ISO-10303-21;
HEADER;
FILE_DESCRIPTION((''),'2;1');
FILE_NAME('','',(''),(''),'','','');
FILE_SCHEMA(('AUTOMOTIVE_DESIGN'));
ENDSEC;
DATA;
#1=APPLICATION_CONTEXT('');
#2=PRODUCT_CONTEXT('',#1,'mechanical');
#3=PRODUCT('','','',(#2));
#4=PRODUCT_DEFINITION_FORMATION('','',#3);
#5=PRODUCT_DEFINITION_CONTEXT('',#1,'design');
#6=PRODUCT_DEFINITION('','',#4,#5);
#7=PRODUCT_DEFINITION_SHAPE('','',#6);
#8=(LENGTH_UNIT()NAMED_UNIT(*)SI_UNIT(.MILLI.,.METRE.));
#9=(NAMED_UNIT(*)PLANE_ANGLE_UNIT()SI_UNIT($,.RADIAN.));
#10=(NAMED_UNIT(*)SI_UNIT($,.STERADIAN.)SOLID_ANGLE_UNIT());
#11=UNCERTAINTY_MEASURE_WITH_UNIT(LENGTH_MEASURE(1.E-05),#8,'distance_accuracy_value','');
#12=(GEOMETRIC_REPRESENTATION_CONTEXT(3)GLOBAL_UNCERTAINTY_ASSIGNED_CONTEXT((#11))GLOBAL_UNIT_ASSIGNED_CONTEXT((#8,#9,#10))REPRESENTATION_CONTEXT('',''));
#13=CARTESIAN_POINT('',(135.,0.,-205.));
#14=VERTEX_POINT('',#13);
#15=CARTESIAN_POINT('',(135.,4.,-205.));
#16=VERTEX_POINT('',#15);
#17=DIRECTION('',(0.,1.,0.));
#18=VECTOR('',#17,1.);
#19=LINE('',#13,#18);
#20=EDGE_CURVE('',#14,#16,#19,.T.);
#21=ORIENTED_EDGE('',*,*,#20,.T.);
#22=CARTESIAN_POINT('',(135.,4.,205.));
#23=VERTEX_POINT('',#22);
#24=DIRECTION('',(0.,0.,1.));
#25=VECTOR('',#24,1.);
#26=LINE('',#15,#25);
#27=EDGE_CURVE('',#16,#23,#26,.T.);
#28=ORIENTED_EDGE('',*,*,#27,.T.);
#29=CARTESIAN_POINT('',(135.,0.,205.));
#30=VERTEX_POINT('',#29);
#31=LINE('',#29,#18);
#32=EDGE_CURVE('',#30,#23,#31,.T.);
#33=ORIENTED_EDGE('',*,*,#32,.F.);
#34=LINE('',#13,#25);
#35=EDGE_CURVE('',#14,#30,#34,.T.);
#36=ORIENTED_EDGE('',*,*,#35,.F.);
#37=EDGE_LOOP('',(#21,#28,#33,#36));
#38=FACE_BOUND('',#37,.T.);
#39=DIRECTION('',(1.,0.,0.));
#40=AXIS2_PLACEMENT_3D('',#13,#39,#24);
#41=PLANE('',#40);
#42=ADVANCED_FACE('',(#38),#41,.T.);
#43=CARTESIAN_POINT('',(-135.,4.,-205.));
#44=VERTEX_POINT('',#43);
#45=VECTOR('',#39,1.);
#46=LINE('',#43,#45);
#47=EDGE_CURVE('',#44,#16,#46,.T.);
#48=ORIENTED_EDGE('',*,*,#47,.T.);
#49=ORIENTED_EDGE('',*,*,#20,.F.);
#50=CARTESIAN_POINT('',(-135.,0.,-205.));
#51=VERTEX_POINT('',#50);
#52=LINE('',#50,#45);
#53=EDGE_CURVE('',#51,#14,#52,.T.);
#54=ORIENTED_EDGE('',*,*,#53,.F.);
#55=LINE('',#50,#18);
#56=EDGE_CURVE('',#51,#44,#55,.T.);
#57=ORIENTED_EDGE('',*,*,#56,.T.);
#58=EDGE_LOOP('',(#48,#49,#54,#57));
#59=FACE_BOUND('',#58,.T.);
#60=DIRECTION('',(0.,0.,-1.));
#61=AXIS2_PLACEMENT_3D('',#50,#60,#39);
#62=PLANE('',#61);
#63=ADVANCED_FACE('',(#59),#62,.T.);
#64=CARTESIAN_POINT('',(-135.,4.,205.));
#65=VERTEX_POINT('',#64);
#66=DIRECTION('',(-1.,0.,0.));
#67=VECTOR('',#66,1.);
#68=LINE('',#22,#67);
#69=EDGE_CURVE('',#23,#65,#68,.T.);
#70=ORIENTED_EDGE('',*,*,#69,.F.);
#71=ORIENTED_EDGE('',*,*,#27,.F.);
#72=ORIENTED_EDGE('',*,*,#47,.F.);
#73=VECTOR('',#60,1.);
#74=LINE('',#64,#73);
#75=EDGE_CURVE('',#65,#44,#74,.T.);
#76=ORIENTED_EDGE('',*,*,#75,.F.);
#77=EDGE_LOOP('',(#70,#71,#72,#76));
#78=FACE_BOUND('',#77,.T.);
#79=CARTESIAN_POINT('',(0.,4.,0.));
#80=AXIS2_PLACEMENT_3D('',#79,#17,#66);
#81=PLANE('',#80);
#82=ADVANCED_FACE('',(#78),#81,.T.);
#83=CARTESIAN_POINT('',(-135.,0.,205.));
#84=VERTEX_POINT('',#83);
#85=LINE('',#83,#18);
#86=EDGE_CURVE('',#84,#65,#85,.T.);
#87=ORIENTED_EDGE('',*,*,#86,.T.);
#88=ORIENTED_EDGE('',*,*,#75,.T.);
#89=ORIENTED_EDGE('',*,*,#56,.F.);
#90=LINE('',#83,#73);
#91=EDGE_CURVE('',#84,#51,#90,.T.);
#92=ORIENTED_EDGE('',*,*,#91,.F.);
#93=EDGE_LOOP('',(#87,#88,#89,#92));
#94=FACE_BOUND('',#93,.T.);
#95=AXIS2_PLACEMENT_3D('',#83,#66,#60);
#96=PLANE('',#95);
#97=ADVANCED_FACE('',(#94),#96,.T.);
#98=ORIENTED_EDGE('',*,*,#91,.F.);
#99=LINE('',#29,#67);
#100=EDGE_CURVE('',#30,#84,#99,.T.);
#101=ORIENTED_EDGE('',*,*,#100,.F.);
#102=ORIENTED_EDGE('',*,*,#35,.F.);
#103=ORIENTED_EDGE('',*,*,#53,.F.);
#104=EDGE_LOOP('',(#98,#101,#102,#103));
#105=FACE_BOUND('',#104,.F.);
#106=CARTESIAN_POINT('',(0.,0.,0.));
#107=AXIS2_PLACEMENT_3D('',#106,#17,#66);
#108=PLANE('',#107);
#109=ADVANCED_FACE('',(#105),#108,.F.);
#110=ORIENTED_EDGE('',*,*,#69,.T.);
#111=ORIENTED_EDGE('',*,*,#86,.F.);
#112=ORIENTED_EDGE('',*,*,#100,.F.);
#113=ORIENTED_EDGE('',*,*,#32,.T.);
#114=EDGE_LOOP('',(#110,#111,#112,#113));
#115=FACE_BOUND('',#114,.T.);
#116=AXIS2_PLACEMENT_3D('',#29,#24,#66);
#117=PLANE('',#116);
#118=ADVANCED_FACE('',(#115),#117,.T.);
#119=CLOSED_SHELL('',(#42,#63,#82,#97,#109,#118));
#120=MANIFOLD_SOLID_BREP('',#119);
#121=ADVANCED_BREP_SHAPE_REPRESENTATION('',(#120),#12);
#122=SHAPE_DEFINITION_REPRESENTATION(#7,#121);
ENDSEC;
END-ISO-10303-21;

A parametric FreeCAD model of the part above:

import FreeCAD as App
import Part
import Sketcher
from FreeCAD import Vector


def add_polygon(sketch, points):
    """Adds a closed chain of lines whose ends are joined by coincident constraints."""
    first, n = sketch.GeometryCount, len(points)
    for a, b in zip(points, points[1:] + points[:1]):
        sketch.addGeometry(Part.LineSegment(App.Vector(*a, 0), App.Vector(*b, 0)), False)
    for i in range(n):
        sketch.addConstraint(Sketcher.Constraint("Coincident", first + i, 2, first + (i + 1) % n, 1))

doc = App.newDocument("Part")
body = doc.addObject("PartDesign::Body", "Body")

sketch1 = body.newObject("Sketcher::SketchObject", "Sketch")
sketch1.AttachmentSupport = (doc.getObject("XZ_Plane"), [""])
sketch1.MapMode = "FlatFace"
add_polygon(sketch1, [(-135, 205), (135, 205), (135, -205), (-135, -205)])
sketch1.addConstraint([
    Sketcher.Constraint("Horizontal", 0),
    Sketcher.Constraint("Vertical", 1),
    Sketcher.Constraint("Horizontal", 2),
    Sketcher.Constraint("Vertical", 3),
    Sketcher.Constraint("Symmetric", 0, 2, 2, 2, -1, 1),
    Sketcher.Constraint("DistanceX", 0, 1, 0, 2, 270.0),
    Sketcher.Constraint("DistanceY", 1, 2, 1, 1, 410.0),
])
pad1 = body.newObject("PartDesign::Pad", "Pad")
pad1.Profile = sketch1
pad1.Length = 4
pad1.Reversed = True

doc.recompute()
